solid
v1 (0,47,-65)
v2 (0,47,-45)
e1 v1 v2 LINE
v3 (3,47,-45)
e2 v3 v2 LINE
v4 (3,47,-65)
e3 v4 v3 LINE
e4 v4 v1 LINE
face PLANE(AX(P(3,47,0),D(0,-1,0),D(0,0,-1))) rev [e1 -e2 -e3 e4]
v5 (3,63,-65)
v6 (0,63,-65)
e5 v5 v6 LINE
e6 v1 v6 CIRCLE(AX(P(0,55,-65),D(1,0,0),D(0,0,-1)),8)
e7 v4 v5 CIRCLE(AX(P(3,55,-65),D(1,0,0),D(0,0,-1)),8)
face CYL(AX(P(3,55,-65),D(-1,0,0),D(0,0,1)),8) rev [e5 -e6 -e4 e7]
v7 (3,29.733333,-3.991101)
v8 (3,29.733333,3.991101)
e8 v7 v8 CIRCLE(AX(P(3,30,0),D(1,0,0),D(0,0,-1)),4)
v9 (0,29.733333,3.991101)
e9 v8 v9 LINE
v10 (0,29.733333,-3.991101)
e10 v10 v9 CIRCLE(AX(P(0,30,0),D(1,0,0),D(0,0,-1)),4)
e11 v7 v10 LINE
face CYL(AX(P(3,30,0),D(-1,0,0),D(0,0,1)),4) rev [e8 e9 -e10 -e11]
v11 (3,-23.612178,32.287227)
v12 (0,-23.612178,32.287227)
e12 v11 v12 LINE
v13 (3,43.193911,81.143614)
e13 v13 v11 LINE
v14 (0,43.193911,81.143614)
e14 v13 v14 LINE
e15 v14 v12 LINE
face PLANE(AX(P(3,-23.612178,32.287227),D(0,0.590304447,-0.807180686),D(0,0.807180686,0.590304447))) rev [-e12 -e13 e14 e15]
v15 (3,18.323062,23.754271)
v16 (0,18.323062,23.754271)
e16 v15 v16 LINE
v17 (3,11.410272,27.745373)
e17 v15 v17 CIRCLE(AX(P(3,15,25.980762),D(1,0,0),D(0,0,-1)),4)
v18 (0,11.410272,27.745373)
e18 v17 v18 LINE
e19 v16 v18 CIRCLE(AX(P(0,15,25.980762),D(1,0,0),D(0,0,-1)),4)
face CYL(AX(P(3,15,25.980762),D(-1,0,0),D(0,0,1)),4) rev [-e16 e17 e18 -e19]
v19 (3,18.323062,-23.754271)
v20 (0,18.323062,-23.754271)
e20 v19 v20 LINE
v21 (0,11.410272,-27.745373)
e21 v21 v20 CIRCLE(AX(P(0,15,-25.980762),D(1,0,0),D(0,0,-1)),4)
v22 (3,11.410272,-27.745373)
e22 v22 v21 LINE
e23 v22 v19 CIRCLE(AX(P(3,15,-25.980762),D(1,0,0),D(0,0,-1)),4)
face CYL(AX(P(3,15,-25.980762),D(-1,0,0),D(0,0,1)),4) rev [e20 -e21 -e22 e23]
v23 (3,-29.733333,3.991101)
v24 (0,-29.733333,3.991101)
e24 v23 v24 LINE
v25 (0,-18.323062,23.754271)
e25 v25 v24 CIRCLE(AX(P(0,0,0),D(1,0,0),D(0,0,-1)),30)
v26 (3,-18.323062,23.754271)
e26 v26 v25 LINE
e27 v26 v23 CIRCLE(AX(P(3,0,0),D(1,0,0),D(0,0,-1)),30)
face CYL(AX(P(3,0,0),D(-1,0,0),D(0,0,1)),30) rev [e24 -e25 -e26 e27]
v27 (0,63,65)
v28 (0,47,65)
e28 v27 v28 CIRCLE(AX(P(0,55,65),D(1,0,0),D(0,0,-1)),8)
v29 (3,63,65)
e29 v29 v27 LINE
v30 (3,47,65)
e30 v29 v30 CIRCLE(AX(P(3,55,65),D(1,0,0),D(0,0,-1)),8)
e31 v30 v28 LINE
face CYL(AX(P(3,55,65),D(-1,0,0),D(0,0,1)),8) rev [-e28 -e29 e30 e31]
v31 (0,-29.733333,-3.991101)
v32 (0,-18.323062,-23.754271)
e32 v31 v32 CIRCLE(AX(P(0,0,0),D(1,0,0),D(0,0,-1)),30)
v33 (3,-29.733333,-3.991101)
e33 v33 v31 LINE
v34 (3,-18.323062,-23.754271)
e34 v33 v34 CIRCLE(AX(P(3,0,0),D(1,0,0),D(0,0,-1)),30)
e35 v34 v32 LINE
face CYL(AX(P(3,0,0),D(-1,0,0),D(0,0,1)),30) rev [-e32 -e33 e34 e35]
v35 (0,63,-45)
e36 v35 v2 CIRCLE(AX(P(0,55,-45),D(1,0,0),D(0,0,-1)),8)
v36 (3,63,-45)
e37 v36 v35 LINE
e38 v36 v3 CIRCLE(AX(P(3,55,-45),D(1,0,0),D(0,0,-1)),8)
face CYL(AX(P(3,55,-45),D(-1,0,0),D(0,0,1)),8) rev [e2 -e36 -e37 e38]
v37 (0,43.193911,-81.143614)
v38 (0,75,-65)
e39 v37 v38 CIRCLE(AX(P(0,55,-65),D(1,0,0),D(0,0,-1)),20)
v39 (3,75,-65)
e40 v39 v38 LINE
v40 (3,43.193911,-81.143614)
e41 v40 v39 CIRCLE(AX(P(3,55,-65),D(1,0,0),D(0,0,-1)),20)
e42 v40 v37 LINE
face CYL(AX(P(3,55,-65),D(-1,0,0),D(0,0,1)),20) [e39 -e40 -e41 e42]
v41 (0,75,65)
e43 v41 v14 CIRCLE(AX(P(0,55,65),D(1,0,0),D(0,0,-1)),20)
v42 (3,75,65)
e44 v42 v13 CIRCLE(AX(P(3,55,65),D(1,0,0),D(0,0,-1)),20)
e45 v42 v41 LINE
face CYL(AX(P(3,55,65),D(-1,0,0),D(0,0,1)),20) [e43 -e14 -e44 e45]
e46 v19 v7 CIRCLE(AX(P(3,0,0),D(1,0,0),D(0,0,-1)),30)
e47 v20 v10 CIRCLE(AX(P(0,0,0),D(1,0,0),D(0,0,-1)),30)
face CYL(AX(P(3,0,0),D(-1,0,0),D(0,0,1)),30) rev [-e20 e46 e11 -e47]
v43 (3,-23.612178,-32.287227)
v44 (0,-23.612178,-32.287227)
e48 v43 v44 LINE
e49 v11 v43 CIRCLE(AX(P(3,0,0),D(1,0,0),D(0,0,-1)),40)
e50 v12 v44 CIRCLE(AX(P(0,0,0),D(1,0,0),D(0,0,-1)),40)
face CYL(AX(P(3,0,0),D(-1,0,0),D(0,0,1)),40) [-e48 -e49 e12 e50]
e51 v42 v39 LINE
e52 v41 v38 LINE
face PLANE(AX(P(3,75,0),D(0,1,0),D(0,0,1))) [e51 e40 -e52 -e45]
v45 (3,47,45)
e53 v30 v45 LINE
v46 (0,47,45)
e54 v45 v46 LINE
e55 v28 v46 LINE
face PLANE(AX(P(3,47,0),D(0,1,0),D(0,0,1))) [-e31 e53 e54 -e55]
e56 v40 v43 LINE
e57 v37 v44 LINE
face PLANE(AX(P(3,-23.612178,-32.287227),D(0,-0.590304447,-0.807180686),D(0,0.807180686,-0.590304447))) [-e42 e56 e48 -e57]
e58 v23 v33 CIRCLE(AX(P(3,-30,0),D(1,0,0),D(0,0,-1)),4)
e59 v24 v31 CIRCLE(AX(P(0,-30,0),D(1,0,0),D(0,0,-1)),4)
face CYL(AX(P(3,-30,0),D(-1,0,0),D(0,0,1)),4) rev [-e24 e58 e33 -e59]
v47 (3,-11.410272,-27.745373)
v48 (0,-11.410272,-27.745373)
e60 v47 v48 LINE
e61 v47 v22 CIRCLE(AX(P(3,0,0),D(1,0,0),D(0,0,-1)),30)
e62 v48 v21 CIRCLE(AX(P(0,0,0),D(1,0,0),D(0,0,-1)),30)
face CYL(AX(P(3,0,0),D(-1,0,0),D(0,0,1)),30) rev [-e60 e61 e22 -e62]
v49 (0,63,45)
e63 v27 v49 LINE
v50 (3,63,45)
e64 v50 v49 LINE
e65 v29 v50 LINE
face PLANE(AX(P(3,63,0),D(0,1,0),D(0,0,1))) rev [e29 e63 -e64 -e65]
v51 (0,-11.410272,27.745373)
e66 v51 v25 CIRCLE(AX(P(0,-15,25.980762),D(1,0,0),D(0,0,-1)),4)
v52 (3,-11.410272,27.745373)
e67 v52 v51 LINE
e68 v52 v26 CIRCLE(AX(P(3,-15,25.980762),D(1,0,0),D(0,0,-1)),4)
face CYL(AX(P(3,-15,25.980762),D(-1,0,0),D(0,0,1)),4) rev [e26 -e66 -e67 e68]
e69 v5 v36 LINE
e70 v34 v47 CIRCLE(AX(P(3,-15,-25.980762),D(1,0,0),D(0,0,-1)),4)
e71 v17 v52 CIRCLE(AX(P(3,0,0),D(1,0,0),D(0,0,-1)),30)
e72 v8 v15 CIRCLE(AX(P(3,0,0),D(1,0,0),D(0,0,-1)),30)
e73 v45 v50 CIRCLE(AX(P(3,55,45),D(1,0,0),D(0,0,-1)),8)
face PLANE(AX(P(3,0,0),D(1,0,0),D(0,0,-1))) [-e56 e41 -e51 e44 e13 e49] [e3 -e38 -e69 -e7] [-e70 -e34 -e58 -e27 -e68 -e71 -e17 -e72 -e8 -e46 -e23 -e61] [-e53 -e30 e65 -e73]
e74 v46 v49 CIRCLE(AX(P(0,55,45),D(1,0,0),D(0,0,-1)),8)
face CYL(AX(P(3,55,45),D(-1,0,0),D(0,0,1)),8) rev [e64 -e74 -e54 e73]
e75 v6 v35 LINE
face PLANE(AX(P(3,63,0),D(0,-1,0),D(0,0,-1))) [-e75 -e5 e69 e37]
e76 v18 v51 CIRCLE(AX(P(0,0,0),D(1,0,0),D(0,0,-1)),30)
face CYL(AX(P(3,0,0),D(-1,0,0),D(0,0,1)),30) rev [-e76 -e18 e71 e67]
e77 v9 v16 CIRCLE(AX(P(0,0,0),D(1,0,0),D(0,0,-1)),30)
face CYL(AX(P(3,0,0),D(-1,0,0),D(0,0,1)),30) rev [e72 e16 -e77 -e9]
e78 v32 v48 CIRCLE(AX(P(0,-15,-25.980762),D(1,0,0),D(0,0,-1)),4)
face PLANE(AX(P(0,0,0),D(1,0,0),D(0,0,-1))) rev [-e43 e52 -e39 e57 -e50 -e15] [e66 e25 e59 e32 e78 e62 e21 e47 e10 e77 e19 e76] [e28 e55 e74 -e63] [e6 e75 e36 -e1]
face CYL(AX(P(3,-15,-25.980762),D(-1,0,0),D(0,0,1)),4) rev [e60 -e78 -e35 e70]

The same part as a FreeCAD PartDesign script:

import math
import FreeCAD as App
import Part
import Sketcher
from FreeCAD import Vector

doc = App.newDocument("Part")
body = doc.addObject("PartDesign::Body", "Body")

# Sketch on YZ plane
sketch1 = body.newObject("Sketcher::SketchObject", "Sketch")
sketch1.AttachmentSupport = (doc.getObject("YZ_Plane"), [""])
sketch1.MapMode = "FlatFace"
sketch1.addGeometry([
    Part.LineSegment(Vector(75, -65, 0), Vector(75, 65, 0)),  # 0
    Part.ArcOfCircle(Part.Circle(Vector(55, 65, 0), Vector(0, 0, 1), 20), math.radians(0), math.radians(126)),  # 1
    Part.LineSegment(Vector(43.19, 81.14, 0), Vector(-23.61, 32.29, 0)),  # 2
    Part.ArcOfCircle(Part.Circle(Vector(0, 0, 0), Vector(0, 0, 1), 40), math.radians(126), math.radians(234)),  # 3
    Part.LineSegment(Vector(-23.61, -32.29, 0), Vector(43.19, -81.14, 0)),  # 4
    Part.ArcOfCircle(Part.Circle(Vector(55, -65, 0), Vector(0, 0, 1), 20), math.radians(-126), math.radians(0)),  # 5
    Part.ArcOfCircle(Part.Circle(Vector(-15, 25.98, 0), Vector(0, 0, 1), 4), math.radians(26), math.radians(214)),  # 6
    Part.ArcOfCircle(Part.Circle(Vector(0, 0, 0), Vector(0, 0, 1), 30), math.radians(68), math.radians(112)),  # 7
    Part.ArcOfCircle(Part.Circle(Vector(15, 25.98, 0), Vector(0, 0, 1), 4), math.radians(-34), math.radians(154)),  # 8
    Part.ArcOfCircle(Part.Circle(Vector(0, 0, 0), Vector(0, 0, 1), 30), math.radians(8), math.radians(52)),  # 9
    Part.ArcOfCircle(Part.Circle(Vector(30, 0, 0), Vector(0, 0, 1), 4), math.radians(-90), math.radians(94)),  # 10
    Part.ArcOfCircle(Part.Circle(Vector(30, 0, 0), Vector(0, 0, 1), 4), math.radians(-93.82), math.radians(-90)),  # 11
    Part.ArcOfCircle(Part.Circle(Vector(0, 0, 0), Vector(0, 0, 1), 30), math.radians(-52), math.radians(-8)),  # 12
    Part.ArcOfCircle(Part.Circle(Vector(15, -25.98, 0), Vector(0, 0, 1), 4), math.radians(-90), math.radians(34)),  # 13
    Part.ArcOfCircle(Part.Circle(Vector(15, -25.98, 0), Vector(0, 0, 1), 4), math.radians(-154), math.radians(-90)),  # 14
    Part.ArcOfCircle(Part.Circle(Vector(0, 0, 0), Vector(0, 0, 1), 30), math.radians(-112), math.radians(-68)),  # 15
    Part.ArcOfCircle(Part.Circle(Vector(-15, -25.98, 0), Vector(0, 0, 1), 4), math.radians(-90), math.radians(-26)),  # 16
    Part.ArcOfCircle(Part.Circle(Vector(-15, -25.98, 0), Vector(0, 0, 1), 4), math.radians(146), math.radians(270)),  # 17
    Part.ArcOfCircle(Part.Circle(Vector(0, 0, 0), Vector(0, 0, 1), 30), math.radians(-172), math.radians(-128)),  # 18
    Part.ArcOfCircle(Part.Circle(Vector(-30, 0, 0), Vector(0, 0, 1), 4), math.radians(-90), math.radians(-86.18)),  # 19
    Part.ArcOfCircle(Part.Circle(Vector(-30, 0, 0), Vector(0, 0, 1), 4), math.radians(86), math.radians(270)),  # 20
    Part.ArcOfCircle(Part.Circle(Vector(0, 0, 0), Vector(0, 0, 1), 30), math.radians(128), math.radians(172)),  # 21
    Part.LineSegment(Vector(47, 45, 0), Vector(47, 65, 0)),  # 22
    Part.ArcOfCircle(Part.Circle(Vector(55, 65, 0), Vector(0, 0, 1), 8), math.radians(0), math.radians(180)),  # 23
    Part.LineSegment(Vector(63, 65, 0), Vector(63, 45, 0)),  # 24
    Part.ArcOfCircle(Part.Circle(Vector(55, 45, 0), Vector(0, 0, 1), 8), math.radians(180), math.radians(360)),  # 25
    Part.LineSegment(Vector(63, -45, 0), Vector(63, -65, 0)),  # 26
    Part.ArcOfCircle(Part.Circle(Vector(55, -65, 0), Vector(0, 0, 1), 8), math.radians(180), math.radians(360)),  # 27
    Part.LineSegment(Vector(47, -65, 0), Vector(47, -45, 0)),  # 28
    Part.ArcOfCircle(Part.Circle(Vector(55, -45, 0), Vector(0, 0, 1), 8), math.radians(0), math.radians(180)),  # 29
], False)
sketch1.addConstraint([
    Sketcher.Constraint("Tangent", 0, 2, 1, 1),
    Sketcher.Constraint("Tangent", 1, 2, 2, 1),
    Sketcher.Constraint("Tangent", 2, 2, 3, 1),
    Sketcher.Constraint("Tangent", 3, 2, 4, 1),
    Sketcher.Constraint("Tangent", 4, 2, 5, 1),
    Sketcher.Constraint("Tangent", 5, 2, 0, 1),
    Sketcher.Constraint("Coincident", 6, 1, 7, 2),
    Sketcher.Constraint("Coincident", 7, 1, 8, 2),
    Sketcher.Constraint("Coincident", 8, 1, 9, 2),
    Sketcher.Constraint("Coincident", 9, 1, 10, 2),
    Sketcher.Constraint("Tangent", 10, 1, 11, 2),
    Sketcher.Constraint("Coincident", 11, 1, 12, 2),
    Sketcher.Constraint("Coincident", 12, 1, 13, 2),
    Sketcher.Constraint("Tangent", 13, 1, 14, 2),
    Sketcher.Constraint("Coincident", 14, 1, 15, 2),
    Sketcher.Constraint("Coincident", 15, 1, 16, 2),
    Sketcher.Constraint("Tangent", 16, 1, 17, 2),
    Sketcher.Constraint("Coincident", 17, 1, 18, 2),
    Sketcher.Constraint("Coincident", 18, 1, 19, 2),
    Sketcher.Constraint("Tangent", 19, 1, 20, 2),
    Sketcher.Constraint("Coincident", 20, 1, 21, 2),
    Sketcher.Constraint("Coincident", 21, 1, 6, 2),
    Sketcher.Constraint("Tangent", 22, 2, 23, 2),
    Sketcher.Constraint("Tangent", 23, 1, 24, 1),
    Sketcher.Constraint("Tangent", 24, 2, 25, 2),
    Sketcher.Constraint("Tangent", 25, 1, 22, 1),
    Sketcher.Constraint("Tangent", 26, 2, 27, 2),
    Sketcher.Constraint("Tangent", 27, 1, 28, 1),
    Sketcher.Constraint("Tangent", 28, 2, 29, 2),
    Sketcher.Constraint("Tangent", 29, 1, 26, 1),
    Sketcher.Constraint("Vertical", 0),
    Sketcher.Constraint("Vertical", 22),
    Sketcher.Constraint("Vertical", 24),
    Sketcher.Constraint("Vertical", 26),
    Sketcher.Constraint("Vertical", 28),
    Sketcher.Constraint("Coincident", 3, 3, -1, 1),
    Sketcher.Constraint("Coincident", 7, 3, -1, 1),
    Sketcher.Constraint("Coincident", 9, 3, -1, 1),
    Sketcher.Constraint("Coincident", 12, 3, -1, 1),
    Sketcher.Constraint("Coincident", 15, 3, -1, 1),
    Sketcher.Constraint("Coincident", 18, 3, -1, 1),
    Sketcher.Constraint("Coincident", 21, 3, -1, 1),
    Sketcher.Constraint("Coincident", 23, 3, 1, 3),
    Sketcher.Constraint("Coincident", 27, 3, 5, 3),
    Sketcher.Constraint("Equal", 1, 5),
    Sketcher.Constraint("Equal", 6, 8),
    Sketcher.Constraint("Equal", 7, 9),
    Sketcher.Constraint("Equal", 8, 10),
    Sketcher.Constraint("Equal", 10, 11),
    Sketcher.Constraint("Equal", 9, 12),
    Sketcher.Constraint("Equal", 11, 13),
    Sketcher.Constraint("Equal", 13, 14),
    Sketcher.Constraint("Equal", 12, 15),
    Sketcher.Constraint("Equal", 14, 16),
    Sketcher.Constraint("Equal", 16, 17),
    Sketcher.Constraint("Equal", 15, 18),
    Sketcher.Constraint("Equal", 17, 19),
    Sketcher.Constraint("Equal", 19, 20),
    Sketcher.Constraint("Equal", 18, 21),
    Sketcher.Constraint("Equal", 25, 27),
    Sketcher.Constraint("Symmetric", 6, 3, 13, 3, -1, 1),
    Sketcher.Constraint("Symmetric", 8, 3, 16, 3, -1, 1),
    Sketcher.Constraint("Symmetric", 10, 3, 19, 3, -1, 1),
    Sketcher.Constraint("Symmetric", 6, 3, 8, 3, -2),
    Sketcher.Constraint("Symmetric", 10, 1, 19, 1, -2),
    Sketcher.Constraint("Vertical", 2, 2, 3, 2),
    Sketcher.Constraint("Vertical", 11, 3, 10, 1),
    Sketcher.Constraint("Vertical", 14, 3, 13, 1),
    Sketcher.Constraint("Vertical", 17, 3, 16, 1),
    Sketcher.Constraint("Equal", 24, 26),
    Sketcher.Constraint("Radius", 1, 20.0),
    Sketcher.Constraint("Radius", 3, 40.0),
    Sketcher.Constraint("Radius", 6, 4.0),
    Sketcher.Constraint("Radius", 7, 30.0),
    Sketcher.Constraint("Radius", 23, 8.0),
    Sketcher.Constraint("DistanceY", 0, 1, 0, 2, 130.0),
    Sketcher.Constraint("DistanceY", 22, 1, 22, 2, 20.0),
    Sketcher.Constraint("DistanceX", -1, 1, 1, 3, 55.0),
    Sketcher.Constraint("DistanceX", 6, 3, -1, 1, 15.0),
    Sketcher.Constraint("DistanceX", -1, 1, 10, 3, 30.0),
    Sketcher.Constraint("DistanceY", 8, 1, 7, 1, 3.991101),
])
pad1 = body.newObject("PartDesign::Pad", "Pad")
pad1.Profile = sketch1
pad1.Length = 3

doc.recompute()
